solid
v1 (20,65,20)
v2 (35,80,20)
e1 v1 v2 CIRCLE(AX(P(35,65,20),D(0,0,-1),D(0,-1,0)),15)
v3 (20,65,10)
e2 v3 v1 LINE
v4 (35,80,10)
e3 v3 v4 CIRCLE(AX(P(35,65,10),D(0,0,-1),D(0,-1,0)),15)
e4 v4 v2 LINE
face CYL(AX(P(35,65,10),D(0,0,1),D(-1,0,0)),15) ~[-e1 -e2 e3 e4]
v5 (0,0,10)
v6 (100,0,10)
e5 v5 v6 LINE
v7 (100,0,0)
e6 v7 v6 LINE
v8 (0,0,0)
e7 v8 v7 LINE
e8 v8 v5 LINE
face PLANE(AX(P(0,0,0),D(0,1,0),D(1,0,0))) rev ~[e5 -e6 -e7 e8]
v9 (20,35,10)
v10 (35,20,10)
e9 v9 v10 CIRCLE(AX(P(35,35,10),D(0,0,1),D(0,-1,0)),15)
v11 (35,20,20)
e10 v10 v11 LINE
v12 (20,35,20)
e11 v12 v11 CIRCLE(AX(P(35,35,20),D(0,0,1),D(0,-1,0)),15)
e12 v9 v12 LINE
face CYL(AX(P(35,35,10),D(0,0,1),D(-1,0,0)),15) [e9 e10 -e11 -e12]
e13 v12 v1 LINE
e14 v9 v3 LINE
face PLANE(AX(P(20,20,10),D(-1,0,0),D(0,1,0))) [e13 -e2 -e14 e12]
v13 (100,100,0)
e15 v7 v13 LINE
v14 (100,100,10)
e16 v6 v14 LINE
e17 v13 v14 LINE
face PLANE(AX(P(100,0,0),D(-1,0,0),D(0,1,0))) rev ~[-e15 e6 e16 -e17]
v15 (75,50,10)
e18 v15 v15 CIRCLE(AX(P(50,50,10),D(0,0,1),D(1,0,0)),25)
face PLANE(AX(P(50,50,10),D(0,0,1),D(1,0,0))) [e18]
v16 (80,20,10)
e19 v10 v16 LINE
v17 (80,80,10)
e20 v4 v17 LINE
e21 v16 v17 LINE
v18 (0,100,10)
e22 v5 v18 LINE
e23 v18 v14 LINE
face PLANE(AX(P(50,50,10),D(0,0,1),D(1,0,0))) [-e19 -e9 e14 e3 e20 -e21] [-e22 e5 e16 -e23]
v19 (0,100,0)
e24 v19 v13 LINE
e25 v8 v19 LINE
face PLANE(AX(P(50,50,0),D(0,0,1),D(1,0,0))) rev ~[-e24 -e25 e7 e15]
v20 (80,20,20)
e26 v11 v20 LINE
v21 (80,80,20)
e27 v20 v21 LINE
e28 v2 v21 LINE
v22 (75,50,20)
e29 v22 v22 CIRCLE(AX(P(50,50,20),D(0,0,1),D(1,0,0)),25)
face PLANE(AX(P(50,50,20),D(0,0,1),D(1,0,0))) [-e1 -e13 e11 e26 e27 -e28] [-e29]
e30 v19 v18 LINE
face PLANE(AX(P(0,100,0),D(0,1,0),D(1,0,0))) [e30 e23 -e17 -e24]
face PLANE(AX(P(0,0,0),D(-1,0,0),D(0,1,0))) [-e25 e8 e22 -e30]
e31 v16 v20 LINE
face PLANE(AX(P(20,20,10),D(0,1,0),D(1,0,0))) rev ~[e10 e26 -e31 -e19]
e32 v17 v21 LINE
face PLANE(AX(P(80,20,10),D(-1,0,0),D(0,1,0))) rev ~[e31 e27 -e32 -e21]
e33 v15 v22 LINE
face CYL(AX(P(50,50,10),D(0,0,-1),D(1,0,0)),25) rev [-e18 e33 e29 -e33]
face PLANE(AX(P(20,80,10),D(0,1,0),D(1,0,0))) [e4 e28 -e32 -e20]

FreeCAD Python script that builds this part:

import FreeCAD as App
import Part
import Sketcher
from FreeCAD import Vector
Q = App.Units.Quantity


def edges_at(feature, points):
    """Names of the edges that pass closest to the given points."""
    edges = feature.Shape.Edges
    near = lambda p: min(range(len(edges)), key=lambda i: edges[i].distToShape(Part.Vertex(*p))[0])
    return sorted({f"Edge{near(p) + 1}" for p in points})


def add_polygon(sketch, points):
    """Adds a closed chain of lines whose ends are joined by coincident constraints."""
    first, n = sketch.GeometryCount, len(points)
    for a, b in zip(points, points[1:] + points[:1]):
        sketch.addGeometry(Part.LineSegment(App.Vector(*a, 0), App.Vector(*b, 0)), False)
    for i in range(n):
        sketch.addConstraint(Sketcher.Constraint("Coincident", first + i, 2, first + (i + 1) % n, 1))

doc = App.newDocument("Part")
body = doc.addObject("PartDesign::Body", "Body")

sketch1 = body.newObject("Sketcher::SketchObject", "Sketch")
sketch1.AttachmentSupport = (doc.getObject("XY_Plane"), [""])
sketch1.MapMode = "FlatFace"
add_polygon(sketch1, [(0, 100), (0, 0), (100, 0), (100, 100)])
sketch1.addConstraint(Sketcher.Constraint("Vertical", 0))
sketch1.addConstraint(Sketcher.Constraint("Horizontal", 1))
sketch1.addConstraint(Sketcher.Constraint("Vertical", 2))
sketch1.addConstraint(Sketcher.Constraint("Horizontal", 3))
sketch1.addConstraint(Sketcher.Constraint("Coincident", 0, 2, -1, 1))
sketch1.addConstraint(Sketcher.Constraint("Equal", 3, 0))
sketch1.addConstraint(Sketcher.Constraint("DistanceX", 1, 1, 1, 2, Q("100 mm")))
pad1 = body.newObject("PartDesign::Pad", "Pad")
pad1.Profile = sketch1
pad1.Length = 10
body2 = doc.addObject("PartDesign::Body", "Body001")

sketch2 = body2.newObject("Sketcher::SketchObject", "Sketch001")
sketch2.AttachmentSupport = (doc.getObject("XY_Plane001"), [""])
sketch2.MapMode = "FlatFace"
sketch2.AttachmentOffset = App.Placement(Vector(0, 0, 10), App.Rotation())
sketch2.addGeometry(Part.Circle(Vector(50, 50, 0), Vector(0, 0, 1), 25), False)
sketch2.addConstraint(Sketcher.Constraint("Diameter", 0, Q("50 mm")))
sketch2.addConstraint(Sketcher.Constraint("DistanceX", -1, 1, 0, 3, Q("50 mm")))
sketch2.addConstraint(Sketcher.Constraint("DistanceY", -1, 1, 0, 3, Q("50 mm")))
pad2 = body2.newObject("PartDesign::Pad", "Pad001")
pad2.Profile = sketch2
pad2.Length = 10
body3 = doc.addObject("PartDesign::Body", "Body002")

sketch3 = body3.newObject("Sketcher::SketchObject", "Sketch002")
sketch3.AttachmentSupport = (doc.getObject("XY_Plane002"), [""])
sketch3.MapMode = "FlatFace"
sketch3.AttachmentOffset = App.Placement(Vector(0, 0, 10), App.Rotation())
add_polygon(sketch3, [(20, 80), (20, 20), (80, 20), (80, 80)])
sketch3.addConstraint(Sketcher.Constraint("Vertical", 0))
sketch3.addConstraint(Sketcher.Constraint("Horizontal", 1))
sketch3.addConstraint(Sketcher.Constraint("Vertical", 2))
sketch3.addConstraint(Sketcher.Constraint("Horizontal", 3))
sketch3.addConstraint(Sketcher.Constraint("Equal", 3, 0))
sketch3.addConstraint(Sketcher.Constraint("DistanceX", 1, 1, 1, 2, Q("60 mm")))
sketch3.addConstraint(Sketcher.Constraint("DistanceX", -1, 1, 0, 2, Q("20 mm")))
sketch3.addConstraint(Sketcher.Constraint("DistanceY", -1, 1, 0, 2, Q("20 mm")))
pad3 = body3.newObject("PartDesign::Pad", "Pad002")
pad3.Profile = sketch3
pad3.Length = 10
doc.recompute()

fillet = body3.newObject("PartDesign::Fillet", "Fillet")
fillet.Base = (pad3, edges_at(pad3, [(20, 20, 15), (20, 80, 15)]))
fillet.Radius = 15
doc.recompute()

boolean = body3.newObject("PartDesign::Boolean", "Boolean")
boolean.Type = "Cut"
boolean.addObjects([body2])
doc.recompute()

boolean2 = body3.newObject("PartDesign::Boolean", "Boolean001")
boolean2.Type = "Fuse"
boolean2.addObjects([body])

doc.recompute()
